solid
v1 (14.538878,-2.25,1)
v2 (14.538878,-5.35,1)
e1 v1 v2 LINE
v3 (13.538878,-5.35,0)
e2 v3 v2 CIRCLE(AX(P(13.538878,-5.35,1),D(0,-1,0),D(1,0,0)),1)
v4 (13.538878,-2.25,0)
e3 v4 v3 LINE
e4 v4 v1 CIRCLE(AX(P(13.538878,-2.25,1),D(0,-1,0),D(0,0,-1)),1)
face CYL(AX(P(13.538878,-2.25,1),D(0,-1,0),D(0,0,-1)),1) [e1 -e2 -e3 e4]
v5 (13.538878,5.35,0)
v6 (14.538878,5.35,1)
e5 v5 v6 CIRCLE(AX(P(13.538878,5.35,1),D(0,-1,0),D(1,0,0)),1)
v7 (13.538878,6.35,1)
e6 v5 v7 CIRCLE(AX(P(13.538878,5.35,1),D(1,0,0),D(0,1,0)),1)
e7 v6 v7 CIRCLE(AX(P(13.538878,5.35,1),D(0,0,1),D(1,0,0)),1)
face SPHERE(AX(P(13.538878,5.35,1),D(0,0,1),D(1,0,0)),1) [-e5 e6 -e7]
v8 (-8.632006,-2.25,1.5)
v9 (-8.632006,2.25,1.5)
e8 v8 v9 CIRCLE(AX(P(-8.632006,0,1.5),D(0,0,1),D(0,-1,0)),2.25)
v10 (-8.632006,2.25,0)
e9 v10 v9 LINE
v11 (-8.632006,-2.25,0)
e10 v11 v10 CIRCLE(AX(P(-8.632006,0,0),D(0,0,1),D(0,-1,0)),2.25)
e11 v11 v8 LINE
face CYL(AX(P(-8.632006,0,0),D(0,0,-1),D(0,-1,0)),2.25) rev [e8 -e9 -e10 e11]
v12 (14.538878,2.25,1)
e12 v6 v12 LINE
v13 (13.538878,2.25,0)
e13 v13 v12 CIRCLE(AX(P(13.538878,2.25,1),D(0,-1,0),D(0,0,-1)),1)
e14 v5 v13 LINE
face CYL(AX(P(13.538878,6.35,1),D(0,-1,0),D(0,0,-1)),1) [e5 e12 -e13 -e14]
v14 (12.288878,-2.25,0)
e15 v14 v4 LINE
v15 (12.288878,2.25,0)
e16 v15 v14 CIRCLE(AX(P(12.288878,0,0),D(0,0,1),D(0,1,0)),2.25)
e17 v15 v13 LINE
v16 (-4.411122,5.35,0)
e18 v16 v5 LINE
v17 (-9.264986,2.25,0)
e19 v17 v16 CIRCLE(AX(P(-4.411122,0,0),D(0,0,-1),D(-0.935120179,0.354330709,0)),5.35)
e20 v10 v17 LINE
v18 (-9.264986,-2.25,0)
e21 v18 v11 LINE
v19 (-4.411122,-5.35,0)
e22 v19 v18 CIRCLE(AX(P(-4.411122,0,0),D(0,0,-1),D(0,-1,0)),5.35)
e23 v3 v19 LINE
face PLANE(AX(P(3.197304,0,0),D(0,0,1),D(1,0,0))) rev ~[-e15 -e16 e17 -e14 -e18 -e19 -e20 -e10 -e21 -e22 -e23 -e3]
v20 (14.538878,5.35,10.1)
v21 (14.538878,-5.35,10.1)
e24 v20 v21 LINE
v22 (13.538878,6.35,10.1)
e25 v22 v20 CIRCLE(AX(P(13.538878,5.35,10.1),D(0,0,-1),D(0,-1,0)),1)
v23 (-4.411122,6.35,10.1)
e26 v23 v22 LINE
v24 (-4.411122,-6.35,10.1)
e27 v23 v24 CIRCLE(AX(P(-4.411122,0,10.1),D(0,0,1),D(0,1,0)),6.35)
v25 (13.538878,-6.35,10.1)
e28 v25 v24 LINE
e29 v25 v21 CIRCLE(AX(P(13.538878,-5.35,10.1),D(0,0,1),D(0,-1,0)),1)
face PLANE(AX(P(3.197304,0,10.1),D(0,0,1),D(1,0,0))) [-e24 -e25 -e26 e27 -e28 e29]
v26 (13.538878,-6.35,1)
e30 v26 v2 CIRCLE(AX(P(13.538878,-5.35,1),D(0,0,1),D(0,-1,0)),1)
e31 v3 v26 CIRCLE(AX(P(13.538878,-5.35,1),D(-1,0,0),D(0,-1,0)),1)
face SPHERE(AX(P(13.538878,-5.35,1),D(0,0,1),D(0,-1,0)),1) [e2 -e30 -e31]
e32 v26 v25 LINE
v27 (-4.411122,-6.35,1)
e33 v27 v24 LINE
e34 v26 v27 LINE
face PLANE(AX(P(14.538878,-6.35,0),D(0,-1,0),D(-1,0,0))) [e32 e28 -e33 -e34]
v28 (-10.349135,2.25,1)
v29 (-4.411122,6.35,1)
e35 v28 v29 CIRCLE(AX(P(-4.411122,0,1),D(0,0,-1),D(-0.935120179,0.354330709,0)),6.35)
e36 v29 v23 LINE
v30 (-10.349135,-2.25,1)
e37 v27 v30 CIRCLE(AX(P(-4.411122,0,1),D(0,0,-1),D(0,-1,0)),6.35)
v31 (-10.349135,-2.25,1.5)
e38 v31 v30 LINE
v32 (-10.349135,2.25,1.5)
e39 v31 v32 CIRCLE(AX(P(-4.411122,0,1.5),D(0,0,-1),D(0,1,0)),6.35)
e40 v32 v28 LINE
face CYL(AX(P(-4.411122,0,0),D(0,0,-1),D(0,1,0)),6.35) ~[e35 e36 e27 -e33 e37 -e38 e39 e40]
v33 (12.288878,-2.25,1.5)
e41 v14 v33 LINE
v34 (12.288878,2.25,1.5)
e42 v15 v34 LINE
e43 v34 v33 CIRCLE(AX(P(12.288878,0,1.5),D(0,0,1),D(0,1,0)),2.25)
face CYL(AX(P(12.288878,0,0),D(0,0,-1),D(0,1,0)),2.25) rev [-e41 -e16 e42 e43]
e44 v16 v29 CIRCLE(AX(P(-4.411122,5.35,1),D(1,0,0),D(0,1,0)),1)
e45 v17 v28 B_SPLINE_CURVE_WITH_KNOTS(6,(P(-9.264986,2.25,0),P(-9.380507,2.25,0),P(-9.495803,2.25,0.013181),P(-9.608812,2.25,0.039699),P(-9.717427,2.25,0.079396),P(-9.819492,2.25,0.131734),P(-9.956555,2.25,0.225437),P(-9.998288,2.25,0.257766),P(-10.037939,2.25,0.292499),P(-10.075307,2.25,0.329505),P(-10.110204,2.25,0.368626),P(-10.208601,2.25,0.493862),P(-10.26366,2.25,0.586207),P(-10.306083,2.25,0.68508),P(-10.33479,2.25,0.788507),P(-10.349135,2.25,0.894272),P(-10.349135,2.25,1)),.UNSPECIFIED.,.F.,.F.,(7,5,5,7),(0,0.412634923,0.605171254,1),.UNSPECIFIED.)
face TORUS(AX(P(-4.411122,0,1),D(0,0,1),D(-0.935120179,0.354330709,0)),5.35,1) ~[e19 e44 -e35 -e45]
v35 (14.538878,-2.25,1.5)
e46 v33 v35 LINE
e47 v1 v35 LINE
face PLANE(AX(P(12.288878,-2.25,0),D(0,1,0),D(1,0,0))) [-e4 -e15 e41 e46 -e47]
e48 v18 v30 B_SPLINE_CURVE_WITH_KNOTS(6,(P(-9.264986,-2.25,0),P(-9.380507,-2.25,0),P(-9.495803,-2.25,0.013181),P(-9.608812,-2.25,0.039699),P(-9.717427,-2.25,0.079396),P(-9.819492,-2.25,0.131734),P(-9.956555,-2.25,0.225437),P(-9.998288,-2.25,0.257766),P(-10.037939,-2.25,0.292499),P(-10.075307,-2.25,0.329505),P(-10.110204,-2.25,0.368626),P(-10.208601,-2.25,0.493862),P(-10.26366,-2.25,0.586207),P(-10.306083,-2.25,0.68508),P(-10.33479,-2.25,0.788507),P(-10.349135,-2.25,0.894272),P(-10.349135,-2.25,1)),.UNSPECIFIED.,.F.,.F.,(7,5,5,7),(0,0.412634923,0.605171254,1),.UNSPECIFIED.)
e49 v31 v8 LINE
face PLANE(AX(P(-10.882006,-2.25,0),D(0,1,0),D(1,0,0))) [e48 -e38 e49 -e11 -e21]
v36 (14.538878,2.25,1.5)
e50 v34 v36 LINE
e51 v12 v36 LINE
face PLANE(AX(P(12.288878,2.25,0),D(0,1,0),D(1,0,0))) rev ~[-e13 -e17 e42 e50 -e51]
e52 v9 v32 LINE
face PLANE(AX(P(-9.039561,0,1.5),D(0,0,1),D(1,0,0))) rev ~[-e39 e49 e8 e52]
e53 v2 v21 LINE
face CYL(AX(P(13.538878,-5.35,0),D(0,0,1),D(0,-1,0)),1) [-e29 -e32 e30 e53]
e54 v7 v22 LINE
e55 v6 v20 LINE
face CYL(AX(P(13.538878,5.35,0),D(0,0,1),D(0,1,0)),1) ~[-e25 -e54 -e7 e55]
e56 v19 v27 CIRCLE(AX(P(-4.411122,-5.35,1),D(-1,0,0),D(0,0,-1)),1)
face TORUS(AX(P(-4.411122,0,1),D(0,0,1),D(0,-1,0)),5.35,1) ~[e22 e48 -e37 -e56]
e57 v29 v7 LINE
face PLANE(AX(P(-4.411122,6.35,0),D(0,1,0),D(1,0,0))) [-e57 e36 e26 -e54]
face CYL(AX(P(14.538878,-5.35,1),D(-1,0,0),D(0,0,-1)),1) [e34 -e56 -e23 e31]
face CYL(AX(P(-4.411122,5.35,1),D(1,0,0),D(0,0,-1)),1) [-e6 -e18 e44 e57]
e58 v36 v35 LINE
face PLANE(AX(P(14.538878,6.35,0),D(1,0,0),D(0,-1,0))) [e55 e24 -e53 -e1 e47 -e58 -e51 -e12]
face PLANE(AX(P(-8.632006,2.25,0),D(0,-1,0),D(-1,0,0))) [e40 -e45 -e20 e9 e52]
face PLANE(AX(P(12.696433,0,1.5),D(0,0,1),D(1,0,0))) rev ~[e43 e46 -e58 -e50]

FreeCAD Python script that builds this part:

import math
import FreeCAD as App
import Part
import Sketcher

V = App.Vector


def edges_at(feature, points):
    """Names of the edges that pass closest to the given points."""
    edges = feature.Shape.Edges
    near = lambda p: min(range(len(edges)), key=lambda i: edges[i].distToShape(Part.Vertex(*p))[0])
    return sorted({f"Edge{near(p) + 1}" for p in points})

doc = App.newDocument("Part")
body = doc.addObject("PartDesign::Body", "Body")

sketch1 = body.newObject("Sketcher::SketchObject", "Sketch")
sketch1.AttachmentSupport = (doc.getObject("XY_Plane"), [""])
sketch1.MapMode = "FlatFace"
sketch1.addGeometry(Part.ArcOfCircle(Part.Circle(V(-4, 0, 0), V(0, 0, 1), 6), math.radians(90), math.radians(270)), False)
sketch1.addGeometry(Part.LineSegment(V(-4, -6, 0), V(15, -6, 0)), False)
sketch1.addGeometry(Part.LineSegment(V(15, -6, 0), V(15, 6, 0)), False)
sketch1.addGeometry(Part.LineSegment(V(15, 6, 0), V(-4, 6, 0)), False)
sketch1.addConstraint(Sketcher.Constraint("Tangent", 0, 2, 1, 1))
sketch1.addConstraint(Sketcher.Constraint("Coincident", 1, 2, 2, 1))
sketch1.addConstraint(Sketcher.Constraint("Coincident", 2, 2, 3, 1))
sketch1.addConstraint(Sketcher.Constraint("Tangent", 3, 2, 0, 1))
sketch1.addConstraint(Sketcher.Constraint("Horizontal", 1))
sketch1.addConstraint(Sketcher.Constraint("Vertical", 2))
sketch1.addConstraint(Sketcher.Constraint("Horizontal", 3))
sketch1.addConstraint(Sketcher.Constraint("PointOnObject", 0, 3, -1))
sketch1.addConstraint(Sketcher.Constraint("Radius", 0, 6.35))
sketch1.addConstraint(Sketcher.Constraint("DistanceX", 1, 1, 1, 2, 18.95))
sketch1.addConstraint(Sketcher.Constraint("DistanceX", 0, 3, -1, 1, 4.411122))
pad1 = body.newObject("PartDesign::Pad", "Pad")
pad1.Profile = sketch1
pad1.Length = 10.1

sketch2 = body.newObject("Sketcher::SketchObject", "Sketch001")
sketch2.AttachmentSupport = (doc.getObject("XY_Plane"), [""])
sketch2.MapMode = "FlatFace"
sketch2.addGeometry(Part.ArcOfCircle(Part.Circle(V(12.3, 0, 0), V(0, 0, 1), 2.2), math.radians(90), math.radians(270)), False)
sketch2.addGeometry(Part.LineSegment(V(12.3, -2.2, 0), V(14.5, -2.2, 0)), False)
sketch2.addGeometry(Part.LineSegment(V(14.5, -2.2, 0), V(14.5, 2.2, 0)), False)
sketch2.addGeometry(Part.LineSegment(V(14.5, 2.2, 0), V(12.3, 2.2, 0)), False)
sketch2.addConstraint(Sketcher.Constraint("Tangent", 0, 2, 1, 1))
sketch2.addConstraint(Sketcher.Constraint("Coincident", 1, 2, 2, 1))
sketch2.addConstraint(Sketcher.Constraint("Coincident", 2, 2, 3, 1))
sketch2.addConstraint(Sketcher.Constraint("Tangent", 3, 2, 0, 1))
sketch2.addConstraint(Sketcher.Constraint("Horizontal", 1))
sketch2.addConstraint(Sketcher.Constraint("Vertical", 2))
sketch2.addConstraint(Sketcher.Constraint("Horizontal", 3))
sketch2.addConstraint(Sketcher.Constraint("PointOnObject", 0, 3, -1))
sketch2.addConstraint(Sketcher.Constraint("Radius", 0, 2.25))
sketch2.addConstraint(Sketcher.Constraint("DistanceX", 1, 1, 1, 2, 2.25))
sketch2.addConstraint(Sketcher.Constraint("DistanceX", -1, 1, 0, 3, 12.288878))
pocket1 = body.newObject("PartDesign::Pocket", "Pocket")
pocket1.Profile = sketch2
pocket1.Length = 1.5
pocket1.Reversed = True

sketch3 = body.newObject("Sketcher::SketchObject", "Sketch002")
sketch3.AttachmentSupport = (doc.getObject("XY_Plane"), [""])
sketch3.MapMode = "FlatFace"
sketch3.addGeometry(Part.ArcOfCircle(Part.Circle(V(-8.6, 0, 0), V(0, 0, 1), 2.2), math.radians(-90), math.radians(90)), False)
sketch3.addGeometry(Part.LineSegment(V(-8.6, 2.2, 0), V(-10.9, 2.2, 0)), False)
sketch3.addGeometry(Part.LineSegment(V(-10.9, 2.2, 0), V(-10.9, -2.2, 0)), False)
sketch3.addGeometry(Part.LineSegment(V(-10.9, -2.2, 0), V(-8.6, -2.2, 0)), False)
sketch3.addConstraint(Sketcher.Constraint("Tangent", 0, 2, 1, 1))
sketch3.addConstraint(Sketcher.Constraint("Coincident", 1, 2, 2, 1))
sketch3.addConstraint(Sketcher.Constraint("Coincident", 2, 2, 3, 1))
sketch3.addConstraint(Sketcher.Constraint("Tangent", 3, 2, 0, 1))
sketch3.addConstraint(Sketcher.Constraint("Horizontal", 1))
sketch3.addConstraint(Sketcher.Constraint("Vertical", 2))
sketch3.addConstraint(Sketcher.Constraint("Horizontal", 3))
sketch3.addConstraint(Sketcher.Constraint("PointOnObject", 0, 3, -1))
sketch3.addConstraint(Sketcher.Constraint("Radius", 0, 2.25))
sketch3.addConstraint(Sketcher.Constraint("DistanceX", 1, 2, 1, 1, 2.25))
sketch3.addConstraint(Sketcher.Constraint("DistanceX", 0, 3, -1, 1, 8.632006))
pocket2 = body.newObject("PartDesign::Pocket", "Pocket001")
pocket2.Profile = sketch3
pocket2.Length = 1.5
pocket2.Reversed = True
doc.recompute()

fillet = body.newObject("PartDesign::Fillet", "Fillet")
fillet.Base = (pocket2, edges_at(pocket2, [
    (14.539, -6.35, 5.05),
    (14.539, 6.35, 5.05),
    (5.064, -6.35, 0),
    (14.539, -4.3, 0),
    (14.539, 4.3, 0),
    (5.064, 6.35, 0),
    (-8.019, 5.225, 0),
    (-8.019, -5.225, 0),
]))
fillet.Radius = 1

doc.recompute()
